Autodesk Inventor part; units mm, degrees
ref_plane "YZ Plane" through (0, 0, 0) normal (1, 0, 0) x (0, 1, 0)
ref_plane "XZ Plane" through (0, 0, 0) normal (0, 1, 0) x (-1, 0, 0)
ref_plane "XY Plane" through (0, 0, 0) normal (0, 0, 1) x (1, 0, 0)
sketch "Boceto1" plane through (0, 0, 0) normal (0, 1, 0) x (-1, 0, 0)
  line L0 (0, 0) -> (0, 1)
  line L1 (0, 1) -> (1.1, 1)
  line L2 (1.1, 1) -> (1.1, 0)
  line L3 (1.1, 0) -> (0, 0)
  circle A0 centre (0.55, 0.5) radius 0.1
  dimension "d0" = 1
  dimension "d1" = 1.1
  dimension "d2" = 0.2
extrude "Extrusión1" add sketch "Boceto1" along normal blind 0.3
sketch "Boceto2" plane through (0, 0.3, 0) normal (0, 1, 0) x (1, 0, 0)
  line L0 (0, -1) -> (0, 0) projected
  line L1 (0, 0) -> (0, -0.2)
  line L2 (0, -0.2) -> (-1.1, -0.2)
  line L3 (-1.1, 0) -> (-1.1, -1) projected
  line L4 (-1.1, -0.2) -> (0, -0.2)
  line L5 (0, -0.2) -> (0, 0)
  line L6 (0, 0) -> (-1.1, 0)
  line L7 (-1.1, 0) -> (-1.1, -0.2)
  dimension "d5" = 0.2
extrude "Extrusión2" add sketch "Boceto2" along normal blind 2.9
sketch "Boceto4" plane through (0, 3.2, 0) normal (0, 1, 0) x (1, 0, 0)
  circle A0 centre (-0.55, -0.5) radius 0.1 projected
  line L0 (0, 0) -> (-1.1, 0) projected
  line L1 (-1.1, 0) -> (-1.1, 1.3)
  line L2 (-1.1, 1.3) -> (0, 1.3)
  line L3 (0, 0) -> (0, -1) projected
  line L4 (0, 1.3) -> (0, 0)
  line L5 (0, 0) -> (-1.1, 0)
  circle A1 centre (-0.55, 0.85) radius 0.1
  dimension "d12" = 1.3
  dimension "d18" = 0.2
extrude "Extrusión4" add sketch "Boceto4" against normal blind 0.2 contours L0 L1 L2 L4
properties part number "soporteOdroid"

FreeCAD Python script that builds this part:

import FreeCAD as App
import Part
import Sketcher

V = App.Vector

doc = App.newDocument("Part")
body = doc.addObject("PartDesign::Body", "Body")

# Sketch on XZ plane
sketch1 = doc.addObject("Sketcher::SketchObject", "Sketch")
body.addObject(sketch1)
sketch1.AttachmentSupport = (doc.XZ_Plane, [""])
sketch1.MapMode = "FlatFace"
sketch1.addGeometry(Part.LineSegment(V(0, 1, 0), V(0, 0, 0)), False)
sketch1.addGeometry(Part.LineSegment(V(0, 0, 0), V(-1.1, 0, 0)), False)
sketch1.addGeometry(Part.LineSegment(V(-1.1, 0, 0), V(-1.1, 1, 0)), False)
sketch1.addGeometry(Part.LineSegment(V(-1.1, 1, 0), V(0, 1, 0)), False)
sketch1.addGeometry(Part.Circle(V(-0.55, 0.5, 0), V(0, 0, 1), 0.1), False)
sketch1.addConstraint(Sketcher.Constraint("Coincident", 0, 2, 1, 1))
sketch1.addConstraint(Sketcher.Constraint("Coincident", 1, 2, 2, 1))
sketch1.addConstraint(Sketcher.Constraint("Coincident", 2, 2, 3, 1))
sketch1.addConstraint(Sketcher.Constraint("Coincident", 3, 2, 0, 1))
sketch1.addConstraint(Sketcher.Constraint("Vertical", 0))
sketch1.addConstraint(Sketcher.Constraint("Horizontal", 1))
sketch1.addConstraint(Sketcher.Constraint("Vertical", 2))
sketch1.addConstraint(Sketcher.Constraint("Horizontal", 3))
sketch1.addConstraint(Sketcher.Constraint("Coincident", 0, 2, -1, 1))
sketch1.addConstraint(Sketcher.Constraint("Diameter", 4, 0.2))
sketch1.addConstraint(Sketcher.Constraint("DistanceY", 0, 2, 0, 1, 1.0))
sketch1.addConstraint(Sketcher.Constraint("DistanceX", 1, 2, 1, 1, 1.1))
sketch1.addConstraint(Sketcher.Constraint("DistanceY", -1, 1, 4, 3, 0.5))
sketch1.addConstraint(Sketcher.Constraint("DistanceX", 4, 3, -1, 1, 0.55))
pad1 = doc.addObject("PartDesign::Pad", "Pad")
body.addObject(pad1)
pad1.Profile = sketch1
pad1.Length = 0.3
pad1.Reversed = True

# Sketch on XZ plane
sketch2 = doc.addObject("Sketcher::SketchObject", "Sketch001")
body.addObject(sketch2)
sketch2.AttachmentSupport = (doc.XZ_Plane, [""])
sketch2.MapMode = "FlatFace"
sketch2.AttachmentOffset = App.Placement(V(0, 0, -0.3), App.Rotation())
sketch2.addGeometry(Part.LineSegment(V(-1.1, 0.2, 0), V(0, 0.2, 0)), False)
sketch2.addGeometry(Part.LineSegment(V(0, 0.2, 0), V(0, 0, 0)), False)
sketch2.addGeometry(Part.LineSegment(V(0, 0, 0), V(-1.1, 0, 0)), False)
sketch2.addGeometry(Part.LineSegment(V(-1.1, 0, 0), V(-1.1, 0.2, 0)), False)
sketch2.addConstraint(Sketcher.Constraint("Coincident", 0, 2, 1, 1))
sketch2.addConstraint(Sketcher.Constraint("Coincident", 1, 2, 2, 1))
sketch2.addConstraint(Sketcher.Constraint("Coincident", 2, 2, 3, 1))
sketch2.addConstraint(Sketcher.Constraint("Coincident", 3, 2, 0, 1))
sketch2.addConstraint(Sketcher.Constraint("Horizontal", 0))
sketch2.addConstraint(Sketcher.Constraint("Vertical", 1))
sketch2.addConstraint(Sketcher.Constraint("Horizontal", 2))
sketch2.addConstraint(Sketcher.Constraint("Vertical", 3))
sketch2.addConstraint(Sketcher.Constraint("Coincident", 1, 2, -1, 1))
sketch2.addConstraint(Sketcher.Constraint("DistanceY", 1, 2, 1, 1, 0.2))
sketch2.addConstraint(Sketcher.Constraint("DistanceX", 0, 1, 0, 2, 1.1))
pad2 = doc.addObject("PartDesign::Pad", "Pad001")
body.addObject(pad2)
pad2.Profile = sketch2
pad2.Length = 2.9
pad2.Reversed = True

# Sketch on XZ plane
sketch3 = doc.addObject("Sketcher::SketchObject", "Sketch002")
body.addObject(sketch3)
sketch3.AttachmentSupport = (doc.XZ_Plane, [""])
sketch3.MapMode = "FlatFace"
sketch3.AttachmentOffset = App.Placement(V(0, 0, -3.2), App.Rotation())
sketch3.addGeometry(Part.LineSegment(V(-1.1, 0, 0), V(0, 0, 0)), False)
sketch3.addGeometry(Part.LineSegment(V(0, 0, 0), V(0, -1.3, 0)), False)
sketch3.addGeometry(Part.LineSegment(V(0, -1.3, 0), V(-1.1, -1.3, 0)), False)
sketch3.addGeometry(Part.LineSegment(V(-1.1, -1.3, 0), V(-1.1, 0, 0)), False)
sketch3.addGeometry(Part.Circle(V(-0.55, -0.85, 0), V(0, 0, 1), 0.1), False)
sketch3.addConstraint(Sketcher.Constraint("Coincident", 0, 2, 1, 1))
sketch3.addConstraint(Sketcher.Constraint("Coincident", 1, 2, 2, 1))
sketch3.addConstraint(Sketcher.Constraint("Coincident", 2, 2, 3, 1))
sketch3.addConstraint(Sketcher.Constraint("Coincident", 3, 2, 0, 1))
sketch3.addConstraint(Sketcher.Constraint("Horizontal", 0))
sketch3.addConstraint(Sketcher.Constraint("Vertical", 1))
sketch3.addConstraint(Sketcher.Constraint("Horizontal", 2))
sketch3.addConstraint(Sketcher.Constraint("Vertical", 3))
sketch3.addConstraint(Sketcher.Constraint("Coincident", 0, 2, -1, 1))
sketch3.addConstraint(Sketcher.Constraint("Diameter", 4, 0.2))
sketch3.addConstraint(Sketcher.Constraint("DistanceY", 1, 2, 1, 1, 1.3))
sketch3.addConstraint(Sketcher.Constraint("DistanceX", 0, 1, 0, 2, 1.1))
sketch3.addConstraint(Sketcher.Constraint("DistanceX", 4, 3, -1, 1, 0.55))
sketch3.addConstraint(Sketcher.Constraint("DistanceY", 4, 3, -1, 1, 0.85))
pad3 = doc.addObject("PartDesign::Pad", "Pad002")
body.addObject(pad3)
pad3.Profile = sketch3
pad3.Length = 0.2

doc.recompute()
